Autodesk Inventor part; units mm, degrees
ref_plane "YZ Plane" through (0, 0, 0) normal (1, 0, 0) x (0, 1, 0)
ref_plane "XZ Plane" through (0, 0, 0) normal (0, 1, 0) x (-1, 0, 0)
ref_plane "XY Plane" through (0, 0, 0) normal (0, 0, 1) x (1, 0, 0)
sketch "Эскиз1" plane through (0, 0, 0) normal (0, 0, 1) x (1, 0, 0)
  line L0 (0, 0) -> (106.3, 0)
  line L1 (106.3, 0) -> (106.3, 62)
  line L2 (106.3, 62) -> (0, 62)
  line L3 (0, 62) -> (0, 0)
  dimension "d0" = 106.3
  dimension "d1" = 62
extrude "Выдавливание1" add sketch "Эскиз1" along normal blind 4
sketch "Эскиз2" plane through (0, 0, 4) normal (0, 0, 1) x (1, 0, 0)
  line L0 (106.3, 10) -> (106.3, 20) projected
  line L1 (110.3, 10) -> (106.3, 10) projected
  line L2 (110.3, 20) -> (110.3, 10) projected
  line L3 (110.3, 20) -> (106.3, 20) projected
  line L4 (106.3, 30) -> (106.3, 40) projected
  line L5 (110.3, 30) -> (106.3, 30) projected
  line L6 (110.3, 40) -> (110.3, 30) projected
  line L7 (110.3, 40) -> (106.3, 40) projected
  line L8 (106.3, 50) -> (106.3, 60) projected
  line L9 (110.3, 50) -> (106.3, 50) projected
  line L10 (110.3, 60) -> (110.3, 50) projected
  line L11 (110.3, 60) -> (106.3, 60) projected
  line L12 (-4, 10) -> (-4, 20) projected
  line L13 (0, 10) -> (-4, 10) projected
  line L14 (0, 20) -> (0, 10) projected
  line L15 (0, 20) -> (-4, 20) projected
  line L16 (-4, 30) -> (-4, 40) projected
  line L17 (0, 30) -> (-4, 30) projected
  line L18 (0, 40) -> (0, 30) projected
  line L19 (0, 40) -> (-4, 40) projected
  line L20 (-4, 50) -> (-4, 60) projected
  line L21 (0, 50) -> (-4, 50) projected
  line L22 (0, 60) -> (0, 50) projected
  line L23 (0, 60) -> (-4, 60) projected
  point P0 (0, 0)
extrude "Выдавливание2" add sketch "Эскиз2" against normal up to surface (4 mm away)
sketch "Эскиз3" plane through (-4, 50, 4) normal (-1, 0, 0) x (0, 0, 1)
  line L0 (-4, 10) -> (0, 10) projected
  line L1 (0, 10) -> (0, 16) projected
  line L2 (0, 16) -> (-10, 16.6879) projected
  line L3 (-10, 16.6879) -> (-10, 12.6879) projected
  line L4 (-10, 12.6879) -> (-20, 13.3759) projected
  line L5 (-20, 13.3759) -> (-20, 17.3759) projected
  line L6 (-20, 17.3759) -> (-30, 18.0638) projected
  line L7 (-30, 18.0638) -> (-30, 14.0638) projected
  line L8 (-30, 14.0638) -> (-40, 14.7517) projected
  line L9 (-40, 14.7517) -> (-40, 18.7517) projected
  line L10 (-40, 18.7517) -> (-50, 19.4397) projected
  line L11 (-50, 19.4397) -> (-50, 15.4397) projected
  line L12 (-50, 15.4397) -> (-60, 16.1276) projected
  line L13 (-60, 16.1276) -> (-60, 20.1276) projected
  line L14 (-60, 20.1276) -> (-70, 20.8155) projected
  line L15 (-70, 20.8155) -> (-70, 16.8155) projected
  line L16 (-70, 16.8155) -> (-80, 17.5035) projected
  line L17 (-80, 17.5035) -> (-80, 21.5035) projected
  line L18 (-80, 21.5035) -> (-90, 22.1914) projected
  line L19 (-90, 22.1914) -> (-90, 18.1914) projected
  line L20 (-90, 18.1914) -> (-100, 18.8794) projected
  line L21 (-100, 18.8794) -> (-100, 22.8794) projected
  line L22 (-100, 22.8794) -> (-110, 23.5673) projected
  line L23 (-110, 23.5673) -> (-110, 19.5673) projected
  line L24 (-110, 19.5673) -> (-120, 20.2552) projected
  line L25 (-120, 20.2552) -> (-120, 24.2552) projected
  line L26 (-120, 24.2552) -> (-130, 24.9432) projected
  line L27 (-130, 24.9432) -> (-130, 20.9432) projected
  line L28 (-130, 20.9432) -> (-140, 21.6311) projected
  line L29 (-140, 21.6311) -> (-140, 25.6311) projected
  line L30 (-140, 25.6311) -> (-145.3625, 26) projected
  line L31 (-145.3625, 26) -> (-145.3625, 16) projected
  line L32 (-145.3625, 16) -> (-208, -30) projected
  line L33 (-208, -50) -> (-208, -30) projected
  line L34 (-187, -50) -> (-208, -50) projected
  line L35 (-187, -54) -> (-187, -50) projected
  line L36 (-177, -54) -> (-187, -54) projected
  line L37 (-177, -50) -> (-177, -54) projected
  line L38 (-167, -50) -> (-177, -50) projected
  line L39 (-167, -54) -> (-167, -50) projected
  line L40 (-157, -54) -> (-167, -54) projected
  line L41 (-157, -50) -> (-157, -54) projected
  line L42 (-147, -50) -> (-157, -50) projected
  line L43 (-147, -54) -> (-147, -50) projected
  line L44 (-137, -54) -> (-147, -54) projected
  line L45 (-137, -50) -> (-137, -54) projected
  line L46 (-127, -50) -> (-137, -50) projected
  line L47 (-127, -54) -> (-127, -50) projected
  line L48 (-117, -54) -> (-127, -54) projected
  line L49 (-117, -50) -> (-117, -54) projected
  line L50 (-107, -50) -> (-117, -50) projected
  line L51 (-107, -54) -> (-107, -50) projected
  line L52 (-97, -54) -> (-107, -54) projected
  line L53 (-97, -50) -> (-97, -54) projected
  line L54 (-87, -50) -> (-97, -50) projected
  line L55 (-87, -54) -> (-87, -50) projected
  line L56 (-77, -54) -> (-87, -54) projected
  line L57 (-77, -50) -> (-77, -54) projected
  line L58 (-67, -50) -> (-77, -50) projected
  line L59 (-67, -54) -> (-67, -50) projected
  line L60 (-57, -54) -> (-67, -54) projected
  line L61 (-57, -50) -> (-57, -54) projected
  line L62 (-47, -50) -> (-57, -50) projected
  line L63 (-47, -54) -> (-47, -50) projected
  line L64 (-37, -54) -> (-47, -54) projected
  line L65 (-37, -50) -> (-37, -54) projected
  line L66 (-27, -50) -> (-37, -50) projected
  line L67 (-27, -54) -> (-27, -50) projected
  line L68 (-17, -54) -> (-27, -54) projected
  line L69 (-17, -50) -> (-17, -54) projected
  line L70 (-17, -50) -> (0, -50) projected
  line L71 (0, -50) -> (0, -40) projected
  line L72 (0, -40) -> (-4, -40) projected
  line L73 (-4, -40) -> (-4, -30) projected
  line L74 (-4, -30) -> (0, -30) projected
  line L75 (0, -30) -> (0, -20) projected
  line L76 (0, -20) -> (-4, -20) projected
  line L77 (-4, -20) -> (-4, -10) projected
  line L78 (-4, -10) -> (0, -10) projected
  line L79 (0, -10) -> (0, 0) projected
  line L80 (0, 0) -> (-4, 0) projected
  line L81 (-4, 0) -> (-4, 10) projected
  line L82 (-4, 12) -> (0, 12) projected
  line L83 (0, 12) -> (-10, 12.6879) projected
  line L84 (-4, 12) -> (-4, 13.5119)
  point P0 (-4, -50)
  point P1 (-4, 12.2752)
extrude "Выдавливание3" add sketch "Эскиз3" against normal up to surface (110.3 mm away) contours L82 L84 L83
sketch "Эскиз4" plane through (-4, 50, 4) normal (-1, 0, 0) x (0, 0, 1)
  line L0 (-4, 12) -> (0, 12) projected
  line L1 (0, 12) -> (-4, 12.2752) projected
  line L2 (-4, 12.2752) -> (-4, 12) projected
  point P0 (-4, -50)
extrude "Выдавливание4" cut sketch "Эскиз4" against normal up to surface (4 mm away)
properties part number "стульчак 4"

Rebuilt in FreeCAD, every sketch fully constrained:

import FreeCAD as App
import Part
import Sketcher
Q = App.Units.Quantity


def add_polygon(sketch, points):
    """Adds a closed chain of lines whose ends are joined by coincident constraints."""
    first, n = sketch.GeometryCount, len(points)
    for a, b in zip(points, points[1:] + points[:1]):
        sketch.addGeometry(Part.LineSegment(App.Vector(*a, 0), App.Vector(*b, 0)), False)
    for i in range(n):
        sketch.addConstraint(Sketcher.Constraint("Coincident", first + i, 2, first + (i + 1) % n, 1))

doc = App.newDocument("Part")
body = doc.addObject("PartDesign::Body", "Body")

# Sketch on XY plane
sketch1 = body.newObject("Sketcher::SketchObject", "Sketch")
sketch1.AttachmentSupport = (doc.getObject("XY_Plane"), [""])
sketch1.MapMode = "FlatFace"
add_polygon(sketch1, [(0, 62), (0, 0), (106, 0), (106, 62)])  # lines 0-3
sketch1.addConstraint(Sketcher.Constraint("Vertical", 0))
sketch1.addConstraint(Sketcher.Constraint("Horizontal", 1))
sketch1.addConstraint(Sketcher.Constraint("Vertical", 2))
sketch1.addConstraint(Sketcher.Constraint("Horizontal", 3))
sketch1.addConstraint(Sketcher.Constraint("Coincident", 0, 2, -1, 1))
sketch1.addConstraint(Sketcher.Constraint("DistanceY", 0, 2, 0, 1, Q("62 mm")))
sketch1.addConstraint(Sketcher.Constraint("DistanceX", 1, 1, 1, 2, Q("106.3 mm")))
pad1 = body.newObject("PartDesign::Pad", "Pad")
pad1.Profile = sketch1
pad1.Length = 4

# Sketch on XY plane
sketch2 = body.newObject("Sketcher::SketchObject", "Sketch001")
sketch2.AttachmentSupport = (doc.getObject("XY_Plane"), [""])
sketch2.MapMode = "FlatFace"
sketch2.AttachmentOffset = App.Placement(App.Vector(0, 0, 4), App.Rotation())
add_polygon(sketch2, [(106.3, 20), (106.3, 10), (110.3, 10), (110.3, 20)])  # lines 0-3
add_polygon(sketch2, [(106.3, 40), (106.3, 30), (110.3, 30), (110.3, 40)])  # lines 4-7
add_polygon(sketch2, [(106.3, 60), (106.3, 50), (110.3, 50), (110.3, 60)])  # lines 8-11
add_polygon(sketch2, [(-4, 20), (-4, 10), (0, 10), (0, 20)])  # lines 12-15
add_polygon(sketch2, [(-4, 40), (-4, 30), (0, 30), (0, 40)])  # lines 16-19
add_polygon(sketch2, [(-4, 60), (-4, 50), (0, 50), (0, 60)])  # lines 20-23
sketch2.addConstraint(Sketcher.Constraint("Vertical", 0))
sketch2.addConstraint(Sketcher.Constraint("Horizontal", 1))
sketch2.addConstraint(Sketcher.Constraint("Vertical", 2))
sketch2.addConstraint(Sketcher.Constraint("Horizontal", 3))
sketch2.addConstraint(Sketcher.Constraint("Vertical", 4))
sketch2.addConstraint(Sketcher.Constraint("Horizontal", 5))
sketch2.addConstraint(Sketcher.Constraint("Vertical", 6))
sketch2.addConstraint(Sketcher.Constraint("Horizontal", 7))
sketch2.addConstraint(Sketcher.Constraint("Vertical", 8))
sketch2.addConstraint(Sketcher.Constraint("Horizontal", 9))
sketch2.addConstraint(Sketcher.Constraint("Vertical", 10))
sketch2.addConstraint(Sketcher.Constraint("Horizontal", 11))
sketch2.addConstraint(Sketcher.Constraint("Vertical", 12))
sketch2.addConstraint(Sketcher.Constraint("Horizontal", 13))
sketch2.addConstraint(Sketcher.Constraint("Vertical", 14))
sketch2.addConstraint(Sketcher.Constraint("Horizontal", 15))
sketch2.addConstraint(Sketcher.Constraint("Vertical", 16))
sketch2.addConstraint(Sketcher.Constraint("Horizontal", 17))
sketch2.addConstraint(Sketcher.Constraint("Vertical", 18))
sketch2.addConstraint(Sketcher.Constraint("Horizontal", 19))
sketch2.addConstraint(Sketcher.Constraint("Vertical", 20))
sketch2.addConstraint(Sketcher.Constraint("Horizontal", 21))
sketch2.addConstraint(Sketcher.Constraint("Vertical", 22))
sketch2.addConstraint(Sketcher.Constraint("Horizontal", 23))
sketch2.addConstraint(Sketcher.Constraint("PointOnObject", 13, 2, -2))
sketch2.addConstraint(Sketcher.Constraint("PointOnObject", 17, 2, -2))
sketch2.addConstraint(Sketcher.Constraint("PointOnObject", 21, 2, -2))
sketch2.addConstraint(Sketcher.Constraint("Horizontal", 1, 2, 12, 2))
sketch2.addConstraint(Sketcher.Constraint("Horizontal", 3, 2, 14, 2))
sketch2.addConstraint(Sketcher.Constraint("Horizontal", 5, 2, 16, 2))
sketch2.addConstraint(Sketcher.Constraint("Horizontal", 7, 2, 18, 2))
sketch2.addConstraint(Sketcher.Constraint("Horizontal", 9, 2, 20, 2))
sketch2.addConstraint(Sketcher.Constraint("Horizontal", 11, 2, 22, 2))
sketch2.addConstraint(Sketcher.Constraint("Vertical", 3, 2, 4, 2))
sketch2.addConstraint(Sketcher.Constraint("Vertical", 2, 2, 5, 2))
sketch2.addConstraint(Sketcher.Constraint("Vertical", 7, 2, 8, 2))
sketch2.addConstraint(Sketcher.Constraint("Vertical", 6, 2, 9, 2))
sketch2.addConstraint(Sketcher.Constraint("Vertical", 15, 2, 16, 2))
sketch2.addConstraint(Sketcher.Constraint("Vertical", 19, 2, 20, 2))
sketch2.addConstraint(Sketcher.Constraint("Equal", 11, 13))
sketch2.addConstraint(Sketcher.Constraint("Equal", 2, 4))
sketch2.addConstraint(Sketcher.Constraint("Equal", 6, 8))
sketch2.addConstraint(Sketcher.Constraint("DistanceX", 1, 1, 1, 2, Q("4 mm")))
sketch2.addConstraint(Sketcher.Constraint("DistanceY", 0, 2, 0, 1, Q("10 mm")))
sketch2.addConstraint(Sketcher.Constraint("DistanceY", -1, 1, 0, 2, Q("10 mm")))
sketch2.addConstraint(Sketcher.Constraint("DistanceY", -1, 1, 4, 2, Q("30 mm")))
sketch2.addConstraint(Sketcher.Constraint("DistanceY", -1, 1, 8, 2, Q("50 mm")))
sketch2.addConstraint(Sketcher.Constraint("DistanceX", -1, 1, 0, 2, Q("106.3 mm")))
pad2 = body.newObject("PartDesign::Pad", "Pad001")
pad2.Profile = sketch2
pad2.Length = 4
pad2.Reversed = True

# Sketch on YZ plane
sketch3 = body.newObject("Sketcher::SketchObject", "Sketch002")
sketch3.AttachmentSupport = (doc.getObject("YZ_Plane"), [""])
sketch3.MapMode = "FlatFace"
sketch3.AttachmentOffset = App.Placement(App.Vector(0, 0, -4), App.Rotation())
add_polygon(sketch3, [(62, 0), (62, 4), (62.28, 0)])  # lines 0-2
sketch3.addConstraint(Sketcher.Constraint("Vertical", 0))
sketch3.addConstraint(Sketcher.Constraint("Horizontal", 2))
sketch3.addConstraint(Sketcher.Constraint("PointOnObject", 1, 2, -1))
sketch3.addConstraint(Sketcher.Constraint("DistanceY", 0, 1, 0, 2, Q("4 mm")))
sketch3.addConstraint(Sketcher.Constraint("DistanceX", -1, 1, 0, 2, Q("62 mm")))
sketch3.addConstraint(Sketcher.Constraint("DistanceX", 2, 2, 2, 1, Q("0.2752 mm")))
pad3 = body.newObject("PartDesign::Pad", "Pad002")
pad3.Profile = sketch3
pad3.Length = 110.3

# Sketch on YZ plane
sketch4 = body.newObject("Sketcher::SketchObject", "Sketch003")
sketch4.AttachmentSupport = (doc.getObject("YZ_Plane"), [""])
sketch4.MapMode = "FlatFace"
sketch4.AttachmentOffset = App.Placement(App.Vector(0, 0, -4), App.Rotation())
add_polygon(sketch4, [(62.28, 0), (62, 0), (62, 4)])  # lines 0-2
sketch4.addConstraint(Sketcher.Constraint("Horizontal", 0))
sketch4.addConstraint(Sketcher.Constraint("Vertical", 1))
sketch4.addConstraint(Sketcher.Constraint("PointOnObject", 0, 2, -1))
sketch4.addConstraint(Sketcher.Constraint("DistanceY", 1, 1, 1, 2, Q("4 mm")))
sketch4.addConstraint(Sketcher.Constraint("DistanceX", -1, 1, 0, 2, Q("62 mm")))
sketch4.addConstraint(Sketcher.Constraint("DistanceX", 0, 2, 0, 1, Q("0.2752 mm")))
pocket1 = body.newObject("PartDesign::Pocket", "Pocket")
pocket1.Profile = sketch4
pocket1.Length = 4
pocket1.Reversed = True

doc.recompute()
